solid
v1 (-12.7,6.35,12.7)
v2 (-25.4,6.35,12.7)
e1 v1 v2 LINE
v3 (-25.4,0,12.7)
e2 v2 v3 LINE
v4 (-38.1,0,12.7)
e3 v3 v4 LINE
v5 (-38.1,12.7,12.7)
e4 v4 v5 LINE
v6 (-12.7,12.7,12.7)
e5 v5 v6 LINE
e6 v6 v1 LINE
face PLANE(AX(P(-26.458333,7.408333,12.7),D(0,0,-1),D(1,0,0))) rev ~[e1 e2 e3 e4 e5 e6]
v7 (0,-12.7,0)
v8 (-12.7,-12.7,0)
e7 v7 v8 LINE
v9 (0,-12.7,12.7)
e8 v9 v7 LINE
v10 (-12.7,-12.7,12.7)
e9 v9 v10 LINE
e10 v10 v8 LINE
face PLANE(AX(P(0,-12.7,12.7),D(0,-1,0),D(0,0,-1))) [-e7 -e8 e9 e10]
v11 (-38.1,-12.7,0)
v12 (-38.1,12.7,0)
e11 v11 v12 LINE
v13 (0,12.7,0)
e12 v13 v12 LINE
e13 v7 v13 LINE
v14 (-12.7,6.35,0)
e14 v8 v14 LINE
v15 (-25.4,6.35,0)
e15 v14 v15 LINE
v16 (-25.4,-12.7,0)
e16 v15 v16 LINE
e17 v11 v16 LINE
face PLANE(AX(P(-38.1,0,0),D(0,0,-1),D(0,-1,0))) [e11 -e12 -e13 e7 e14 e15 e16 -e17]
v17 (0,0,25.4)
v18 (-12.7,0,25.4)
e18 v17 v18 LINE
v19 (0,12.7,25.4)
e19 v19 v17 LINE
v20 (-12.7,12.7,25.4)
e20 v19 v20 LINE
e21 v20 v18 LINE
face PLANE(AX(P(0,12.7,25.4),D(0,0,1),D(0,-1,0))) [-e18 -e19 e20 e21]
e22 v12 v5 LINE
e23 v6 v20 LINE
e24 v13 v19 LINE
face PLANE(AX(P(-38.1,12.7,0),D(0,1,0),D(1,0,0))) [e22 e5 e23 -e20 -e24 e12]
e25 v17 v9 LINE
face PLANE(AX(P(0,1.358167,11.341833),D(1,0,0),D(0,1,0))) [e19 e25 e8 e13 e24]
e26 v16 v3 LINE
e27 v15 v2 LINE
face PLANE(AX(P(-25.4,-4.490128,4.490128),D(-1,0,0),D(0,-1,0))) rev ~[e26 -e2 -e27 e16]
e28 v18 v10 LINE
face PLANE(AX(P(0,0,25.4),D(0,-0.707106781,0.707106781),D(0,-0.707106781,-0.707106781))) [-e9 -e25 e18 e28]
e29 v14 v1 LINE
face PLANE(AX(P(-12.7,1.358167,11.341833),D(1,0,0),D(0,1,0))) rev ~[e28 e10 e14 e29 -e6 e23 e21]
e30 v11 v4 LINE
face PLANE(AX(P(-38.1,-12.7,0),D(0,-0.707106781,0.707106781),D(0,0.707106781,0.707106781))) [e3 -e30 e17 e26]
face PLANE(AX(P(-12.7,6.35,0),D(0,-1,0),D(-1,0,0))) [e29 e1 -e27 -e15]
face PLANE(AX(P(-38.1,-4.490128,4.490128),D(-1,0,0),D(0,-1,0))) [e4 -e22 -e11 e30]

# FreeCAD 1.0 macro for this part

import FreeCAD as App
import Part
import Sketcher

V = App.Vector
Q = App.Units.Quantity


def add_polygon(sketch, points):
    """Adds a closed chain of lines whose ends are joined by coincident constraints."""
    first, n = sketch.GeometryCount, len(points)
    for a, b in zip(points, points[1:] + points[:1]):
        sketch.addGeometry(Part.LineSegment(App.Vector(*a, 0), App.Vector(*b, 0)), False)
    for i in range(n):
        sketch.addConstraint(Sketcher.Constraint("Coincident", first + i, 2, first + (i + 1) % n, 1))

doc = App.newDocument("Part")
body = doc.addObject("PartDesign::Body", "Body")

# Sketch on YZ plane
sketch1 = body.newObject("Sketcher::SketchObject", "Sketch")
sketch1.AttachmentSupport = (doc.getObject("YZ_Plane"), [""])
sketch1.MapMode = "FlatFace"
add_polygon(sketch1, [(-12.7, 12.7), (-12.7, 0), (12.7, 0), (12.7, 25.4), (0, 25.4)])  # lines 0-4
sketch1.addConstraint(Sketcher.Constraint("Vertical", 0))
sketch1.addConstraint(Sketcher.Constraint("Horizontal", 1))
sketch1.addConstraint(Sketcher.Constraint("Vertical", 2))
sketch1.addConstraint(Sketcher.Constraint("Horizontal", 3))
sketch1.addConstraint(Sketcher.Constraint("Symmetric", 0, 2, 1, 2, -1, 1))
sketch1.addConstraint(Sketcher.Constraint("PointOnObject", 3, 2, -2))
sketch1.addConstraint(Sketcher.Constraint("Equal", 3, 0))
sketch1.addConstraint(Sketcher.Constraint("Equal", 1, 2))
sketch1.addConstraint(Sketcher.Constraint("DistanceX", 1, 1, 1, 2, Q("1 in")))
pad1 = body.newObject("PartDesign::Pad", "Pad")
pad1.Profile = sketch1
pad1.Length = Q("0.5 in")
pad1.Reversed = True

# Sketch on XY plane
sketch2 = body.newObject("Sketcher::SketchObject", "Sketch001")
sketch2.AttachmentSupport = (doc.getObject("XY_Plane"), [""])
sketch2.MapMode = "FlatFace"
add_polygon(sketch2, [(-38.1, 12.7), (-12.7, 12.7), (-12.7, 6.35), (-25.4, 6.35), (-25.4, 0), (-38.1, 0)])  # lines 0-5
sketch2.addConstraint(Sketcher.Constraint("Horizontal", 0))
sketch2.addConstraint(Sketcher.Constraint("Vertical", 1))
sketch2.addConstraint(Sketcher.Constraint("Horizontal", 2))
sketch2.addConstraint(Sketcher.Constraint("Vertical", 3))
sketch2.addConstraint(Sketcher.Constraint("Horizontal", 4))
sketch2.addConstraint(Sketcher.Constraint("Vertical", 5))
sketch2.addConstraint(Sketcher.Constraint("PointOnObject", 3, 2, -1))
sketch2.addConstraint(Sketcher.Constraint("Equal", 2, 4))
sketch2.addConstraint(Sketcher.Constraint("Equal", 1, 3))
sketch2.addConstraint(Sketcher.Constraint("Equal", 4, 5))
sketch2.addConstraint(Sketcher.Constraint("DistanceX", 0, 1, 0, 2, Q("1 in")))
sketch2.addConstraint(Sketcher.Constraint("DistanceX", 2, 2, -1, 1, Q("1 in")))
pad2 = body.newObject("PartDesign::Pad", "Pad001")
pad2.Profile = sketch2
pad2.Length = Q("0.5 in")

# Sketch on YZ plane
sketch3 = body.newObject("Sketcher::SketchObject", "Sketch002")
sketch3.AttachmentSupport = (doc.getObject("YZ_Plane"), [""])
sketch3.MapMode = "FlatFace"
sketch3.AttachmentOffset = App.Placement(V(0, 0, -1.5 * 25.4), App.Rotation())
add_polygon(sketch3, [(-12.7, 0), (0, 12.7), (0, 0)])  # lines 0-2
sketch3.addConstraint(Sketcher.Constraint("Vertical", 1))
sketch3.addConstraint(Sketcher.Constraint("Horizontal", 2))
sketch3.addConstraint(Sketcher.Constraint("Coincident", 1, 2, -1, 1))
sketch3.addConstraint(Sketcher.Constraint("Equal", 2, 1))
sketch3.addConstraint(Sketcher.Constraint("DistanceX", 2, 2, 2, 1, Q("0.5 in")))
pad3 = body.newObject("PartDesign::Pad", "Pad002")
pad3.Profile = sketch3
pad3.Length = Q("0.5 in")

doc.recompute()
